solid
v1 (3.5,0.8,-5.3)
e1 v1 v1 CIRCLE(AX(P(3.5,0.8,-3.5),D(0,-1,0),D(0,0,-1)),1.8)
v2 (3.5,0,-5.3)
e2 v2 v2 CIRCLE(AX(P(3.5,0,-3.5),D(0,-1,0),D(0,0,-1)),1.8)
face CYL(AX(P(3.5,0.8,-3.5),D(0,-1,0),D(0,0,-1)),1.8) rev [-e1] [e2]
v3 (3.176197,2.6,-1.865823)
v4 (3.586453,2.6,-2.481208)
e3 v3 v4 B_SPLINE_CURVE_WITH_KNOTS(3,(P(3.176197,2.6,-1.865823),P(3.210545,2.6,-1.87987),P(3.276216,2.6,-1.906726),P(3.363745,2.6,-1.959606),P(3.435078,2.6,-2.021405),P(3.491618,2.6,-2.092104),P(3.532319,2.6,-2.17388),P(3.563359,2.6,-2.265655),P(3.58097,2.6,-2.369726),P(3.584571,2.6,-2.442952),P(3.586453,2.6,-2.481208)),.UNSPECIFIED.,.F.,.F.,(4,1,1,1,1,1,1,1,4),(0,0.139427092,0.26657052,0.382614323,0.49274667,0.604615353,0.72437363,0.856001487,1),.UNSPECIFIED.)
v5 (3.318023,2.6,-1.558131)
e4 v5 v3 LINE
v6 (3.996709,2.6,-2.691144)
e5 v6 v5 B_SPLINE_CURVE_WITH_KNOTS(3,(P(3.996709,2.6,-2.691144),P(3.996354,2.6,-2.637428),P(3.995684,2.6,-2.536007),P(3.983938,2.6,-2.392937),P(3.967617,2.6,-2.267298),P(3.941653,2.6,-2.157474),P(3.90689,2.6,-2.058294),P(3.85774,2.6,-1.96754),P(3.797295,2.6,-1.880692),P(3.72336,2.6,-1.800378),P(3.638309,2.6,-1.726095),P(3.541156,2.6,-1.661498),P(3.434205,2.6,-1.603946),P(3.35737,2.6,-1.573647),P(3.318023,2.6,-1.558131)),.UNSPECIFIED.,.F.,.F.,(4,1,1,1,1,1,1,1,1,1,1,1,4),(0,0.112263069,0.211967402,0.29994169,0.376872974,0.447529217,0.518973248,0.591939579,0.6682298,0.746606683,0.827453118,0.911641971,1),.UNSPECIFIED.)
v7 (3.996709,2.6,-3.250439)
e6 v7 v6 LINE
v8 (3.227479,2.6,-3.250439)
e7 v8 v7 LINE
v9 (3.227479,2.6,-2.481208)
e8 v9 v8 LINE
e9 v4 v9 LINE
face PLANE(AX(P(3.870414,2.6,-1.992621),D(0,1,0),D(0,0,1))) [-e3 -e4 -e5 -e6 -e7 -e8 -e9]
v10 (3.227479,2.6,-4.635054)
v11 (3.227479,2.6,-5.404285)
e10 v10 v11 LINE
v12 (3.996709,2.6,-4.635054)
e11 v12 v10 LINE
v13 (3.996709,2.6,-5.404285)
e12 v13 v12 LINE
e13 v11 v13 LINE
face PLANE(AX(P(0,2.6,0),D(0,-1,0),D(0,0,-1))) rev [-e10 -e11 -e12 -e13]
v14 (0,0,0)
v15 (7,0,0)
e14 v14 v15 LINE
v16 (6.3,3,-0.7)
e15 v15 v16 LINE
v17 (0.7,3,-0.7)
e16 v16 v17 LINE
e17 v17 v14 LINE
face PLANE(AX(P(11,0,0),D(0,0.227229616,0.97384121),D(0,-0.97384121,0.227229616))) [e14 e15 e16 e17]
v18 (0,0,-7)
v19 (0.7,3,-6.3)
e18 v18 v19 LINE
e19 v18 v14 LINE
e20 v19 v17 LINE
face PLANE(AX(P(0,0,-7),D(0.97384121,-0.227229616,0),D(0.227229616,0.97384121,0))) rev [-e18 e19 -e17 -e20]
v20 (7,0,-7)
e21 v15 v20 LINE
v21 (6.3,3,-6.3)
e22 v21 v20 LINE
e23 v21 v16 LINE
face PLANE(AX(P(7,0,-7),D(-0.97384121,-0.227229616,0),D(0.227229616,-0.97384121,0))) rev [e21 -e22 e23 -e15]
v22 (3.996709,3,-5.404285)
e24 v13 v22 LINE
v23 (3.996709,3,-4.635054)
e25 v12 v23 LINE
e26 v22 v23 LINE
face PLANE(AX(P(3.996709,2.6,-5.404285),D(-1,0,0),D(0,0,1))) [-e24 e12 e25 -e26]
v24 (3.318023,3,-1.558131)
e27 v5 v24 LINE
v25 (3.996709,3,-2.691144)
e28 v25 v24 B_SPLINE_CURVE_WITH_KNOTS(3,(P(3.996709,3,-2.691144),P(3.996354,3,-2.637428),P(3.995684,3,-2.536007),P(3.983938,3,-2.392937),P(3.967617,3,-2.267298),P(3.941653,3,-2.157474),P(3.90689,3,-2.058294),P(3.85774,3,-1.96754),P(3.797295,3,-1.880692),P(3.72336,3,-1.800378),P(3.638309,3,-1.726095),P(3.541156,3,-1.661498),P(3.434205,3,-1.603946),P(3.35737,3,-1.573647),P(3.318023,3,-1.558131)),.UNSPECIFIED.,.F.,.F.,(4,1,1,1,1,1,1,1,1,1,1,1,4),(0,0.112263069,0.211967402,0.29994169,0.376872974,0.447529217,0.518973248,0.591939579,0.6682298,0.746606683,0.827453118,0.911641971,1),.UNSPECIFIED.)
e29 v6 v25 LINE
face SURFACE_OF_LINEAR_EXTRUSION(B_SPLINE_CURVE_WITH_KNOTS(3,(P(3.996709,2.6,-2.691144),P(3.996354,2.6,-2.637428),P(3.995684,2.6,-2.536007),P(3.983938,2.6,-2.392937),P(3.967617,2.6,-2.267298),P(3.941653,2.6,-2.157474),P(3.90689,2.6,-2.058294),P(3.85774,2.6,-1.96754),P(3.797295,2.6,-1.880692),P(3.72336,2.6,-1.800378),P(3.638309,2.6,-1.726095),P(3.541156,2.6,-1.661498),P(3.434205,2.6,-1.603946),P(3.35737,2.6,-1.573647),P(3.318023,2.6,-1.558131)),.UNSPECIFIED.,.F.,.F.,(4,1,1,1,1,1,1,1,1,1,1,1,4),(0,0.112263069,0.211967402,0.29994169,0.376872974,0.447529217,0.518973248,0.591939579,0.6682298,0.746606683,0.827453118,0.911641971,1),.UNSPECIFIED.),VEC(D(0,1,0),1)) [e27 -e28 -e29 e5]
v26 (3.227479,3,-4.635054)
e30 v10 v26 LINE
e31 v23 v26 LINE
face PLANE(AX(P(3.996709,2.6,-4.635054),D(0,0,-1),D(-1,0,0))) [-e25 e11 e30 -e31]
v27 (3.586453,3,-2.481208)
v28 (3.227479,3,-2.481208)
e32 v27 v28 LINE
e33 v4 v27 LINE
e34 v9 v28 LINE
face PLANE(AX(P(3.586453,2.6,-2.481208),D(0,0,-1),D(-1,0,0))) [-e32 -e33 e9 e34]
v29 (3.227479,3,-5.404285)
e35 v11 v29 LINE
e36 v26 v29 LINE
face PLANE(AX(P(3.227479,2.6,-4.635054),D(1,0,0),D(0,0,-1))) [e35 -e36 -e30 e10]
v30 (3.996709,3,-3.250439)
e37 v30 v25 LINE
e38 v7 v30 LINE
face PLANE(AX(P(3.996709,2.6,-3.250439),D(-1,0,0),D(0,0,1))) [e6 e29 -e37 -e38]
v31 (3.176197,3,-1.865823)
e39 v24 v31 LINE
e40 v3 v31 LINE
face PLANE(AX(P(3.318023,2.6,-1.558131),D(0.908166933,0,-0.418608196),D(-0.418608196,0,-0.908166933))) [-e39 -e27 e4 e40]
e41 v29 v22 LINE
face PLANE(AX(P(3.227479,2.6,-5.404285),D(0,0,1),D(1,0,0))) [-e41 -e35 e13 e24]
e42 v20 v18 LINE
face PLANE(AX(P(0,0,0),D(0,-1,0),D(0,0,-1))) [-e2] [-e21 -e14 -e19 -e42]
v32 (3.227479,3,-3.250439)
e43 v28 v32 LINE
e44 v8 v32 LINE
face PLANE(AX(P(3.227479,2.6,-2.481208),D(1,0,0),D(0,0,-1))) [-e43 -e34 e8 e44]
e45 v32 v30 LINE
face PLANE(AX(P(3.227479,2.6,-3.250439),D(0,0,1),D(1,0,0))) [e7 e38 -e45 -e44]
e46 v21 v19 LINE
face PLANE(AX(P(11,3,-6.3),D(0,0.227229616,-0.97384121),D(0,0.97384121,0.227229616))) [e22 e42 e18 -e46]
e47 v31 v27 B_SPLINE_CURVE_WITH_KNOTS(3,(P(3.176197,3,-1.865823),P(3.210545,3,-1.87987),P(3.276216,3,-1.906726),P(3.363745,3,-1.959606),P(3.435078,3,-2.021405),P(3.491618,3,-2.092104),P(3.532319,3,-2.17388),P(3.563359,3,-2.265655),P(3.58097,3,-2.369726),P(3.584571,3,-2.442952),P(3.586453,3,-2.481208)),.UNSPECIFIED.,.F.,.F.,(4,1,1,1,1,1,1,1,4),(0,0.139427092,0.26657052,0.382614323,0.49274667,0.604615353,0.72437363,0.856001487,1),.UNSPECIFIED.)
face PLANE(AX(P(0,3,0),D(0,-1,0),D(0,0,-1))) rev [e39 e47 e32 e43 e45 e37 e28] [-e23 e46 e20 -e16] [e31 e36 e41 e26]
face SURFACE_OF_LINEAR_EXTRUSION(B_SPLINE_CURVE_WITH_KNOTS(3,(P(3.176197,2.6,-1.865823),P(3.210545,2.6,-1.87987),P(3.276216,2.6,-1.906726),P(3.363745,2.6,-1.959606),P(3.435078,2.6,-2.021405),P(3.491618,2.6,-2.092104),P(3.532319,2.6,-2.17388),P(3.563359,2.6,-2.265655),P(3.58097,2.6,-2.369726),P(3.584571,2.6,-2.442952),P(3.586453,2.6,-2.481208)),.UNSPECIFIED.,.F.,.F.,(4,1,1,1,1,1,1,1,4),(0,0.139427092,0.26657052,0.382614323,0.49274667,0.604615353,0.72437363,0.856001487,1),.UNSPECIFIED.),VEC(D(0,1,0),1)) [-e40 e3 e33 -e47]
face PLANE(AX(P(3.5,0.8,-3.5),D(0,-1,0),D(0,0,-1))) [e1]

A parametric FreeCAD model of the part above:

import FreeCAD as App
import Part
import Sketcher

doc = App.newDocument("Part")
body = doc.addObject("PartDesign::Body", "Body")

# Sketch on XZ plane
sketch1 = body.newObject("Sketcher::SketchObject", "Sketch")
sketch1.AttachmentSupport = (doc.getObject("XZ_Plane"), [""])
sketch1.MapMode = "FlatFace"
sketch1.addGeometry(Part.LineSegment(App.Vector(0, -7, 0), App.Vector(0, 0, 0)), False)
sketch1.addGeometry(Part.LineSegment(App.Vector(0, 0, 0), App.Vector(7, 0, 0)), False)
sketch1.addGeometry(Part.LineSegment(App.Vector(7, 0, 0), App.Vector(7, -7, 0)), False)
sketch1.addGeometry(Part.LineSegment(App.Vector(7, -7, 0), App.Vector(0, -7, 0)), False)
sketch1.addConstraint(Sketcher.Constraint("Coincident", 0, 2, 1, 1))
sketch1.addConstraint(Sketcher.Constraint("Coincident", 1, 2, 2, 1))
sketch1.addConstraint(Sketcher.Constraint("Coincident", 2, 2, 3, 1))
sketch1.addConstraint(Sketcher.Constraint("Coincident", 3, 2, 0, 1))
sketch1.addConstraint(Sketcher.Constraint("Vertical", 0))
sketch1.addConstraint(Sketcher.Constraint("Horizontal", 1))
sketch1.addConstraint(Sketcher.Constraint("Vertical", 2))
sketch1.addConstraint(Sketcher.Constraint("Horizontal", 3))
sketch1.addConstraint(Sketcher.Constraint("Coincident", 0, 2, -1, 1))
sketch1.addConstraint(Sketcher.Constraint("Equal", 3, 0))
sketch1.addConstraint(Sketcher.Constraint("DistanceX", 1, 1, 1, 2, 7.0))
pad1 = body.newObject("PartDesign::Pad", "Pad")
pad1.Profile = sketch1
pad1.Length = 3
pad1.Reversed = True

# Sketch on XY plane
sketch2 = body.newObject("Sketcher::SketchObject", "Sketch001")
sketch2.AttachmentSupport = (doc.getObject("XY_Plane"), [""])
sketch2.MapMode = "FlatFace"
sketch2.addGeometry(Part.LineSegment(App.Vector(0, 0, 0), App.Vector(0.7, 3, 0)), False)
sketch2.addGeometry(Part.LineSegment(App.Vector(0.7, 3, 0), App.Vector(0, 3, 0)), False)
sketch2.addGeometry(Part.LineSegment(App.Vector(0, 3, 0), App.Vector(0, 0, 0)), False)
sketch2.addGeometry(Part.LineSegment(App.Vector(6.3, 3, 0), App.Vector(7, 0, 0)), False)
sketch2.addGeometry(Part.LineSegment(App.Vector(7, 0, 0), App.Vector(7, 3, 0)), False)
sketch2.addGeometry(Part.LineSegment(App.Vector(7, 3, 0), App.Vector(6.3, 3, 0)), False)
sketch2.addConstraint(Sketcher.Constraint("Coincident", 0, 2, 1, 1))
sketch2.addConstraint(Sketcher.Constraint("Coincident", 1, 2, 2, 1))
sketch2.addConstraint(Sketcher.Constraint("Coincident", 2, 2, 0, 1))
sketch2.addConstraint(Sketcher.Constraint("Coincident", 3, 2, 4, 1))
sketch2.addConstraint(Sketcher.Constraint("Coincident", 4, 2, 5, 1))
sketch2.addConstraint(Sketcher.Constraint("Coincident", 5, 2, 3, 1))
sketch2.addConstraint(Sketcher.Constraint("Horizontal", 1))
sketch2.addConstraint(Sketcher.Constraint("Vertical", 2))
sketch2.addConstraint(Sketcher.Constraint("Vertical", 4))
sketch2.addConstraint(Sketcher.Constraint("Horizontal", 5))
sketch2.addConstraint(Sketcher.Constraint("Coincident", 2, 2, -1, 1))
sketch2.addConstraint(Sketcher.Constraint("PointOnObject", 3, 2, -1))
sketch2.addConstraint(Sketcher.Constraint("Horizontal", 1, 2, 4, 2))
sketch2.addConstraint(Sketcher.Constraint("Equal", 1, 5))
sketch2.addConstraint(Sketcher.Constraint("DistanceY", 2, 2, 2, 1, 3.0))
sketch2.addConstraint(Sketcher.Constraint("DistanceX", 1, 2, 1, 1, 0.7))
sketch2.addConstraint(Sketcher.Constraint("DistanceX", -1, 1, 3, 2, 7.0))
pocket1 = body.newObject("PartDesign::Pocket", "Pocket")
pocket1.Profile = sketch2
pocket1.Length = 7

# Sketch on YZ plane
sketch3 = body.newObject("Sketcher::SketchObject", "Sketch002")
sketch3.AttachmentSupport = (doc.getObject("YZ_Plane"), [""])
sketch3.MapMode = "FlatFace"
sketch3.addGeometry(Part.LineSegment(App.Vector(0, 0, 0), App.Vector(3, -0.7, 0)), False)
sketch3.addGeometry(Part.LineSegment(App.Vector(3, -0.7, 0), App.Vector(3, 0, 0)), False)
sketch3.addGeometry(Part.LineSegment(App.Vector(3, 0, 0), App.Vector(0, 0, 0)), False)
sketch3.addGeometry(Part.LineSegment(App.Vector(3, -7, 0), App.Vector(3, -6.3, 0)), False)
sketch3.addGeometry(Part.LineSegment(App.Vector(3, -6.3, 0), App.Vector(0, -7, 0)), False)
sketch3.addGeometry(Part.LineSegment(App.Vector(0, -7, 0), App.Vector(3, -7, 0)), False)
sketch3.addConstraint(Sketcher.Constraint("Coincident", 0, 2, 1, 1))
sketch3.addConstraint(Sketcher.Constraint("Coincident", 1, 2, 2, 1))
sketch3.addConstraint(Sketcher.Constraint("Coincident", 2, 2, 0, 1))
sketch3.addConstraint(Sketcher.Constraint("Coincident", 3, 2, 4, 1))
sketch3.addConstraint(Sketcher.Constraint("Coincident", 4, 2, 5, 1))
sketch3.addConstraint(Sketcher.Constraint("Coincident", 5, 2, 3, 1))
sketch3.addConstraint(Sketcher.Constraint("Vertical", 1))
sketch3.addConstraint(Sketcher.Constraint("Horizontal", 2))
sketch3.addConstraint(Sketcher.Constraint("Vertical", 3))
sketch3.addConstraint(Sketcher.Constraint("Horizontal", 5))
sketch3.addConstraint(Sketcher.Constraint("Coincident", 2, 2, -1, 1))
sketch3.addConstraint(Sketcher.Constraint("PointOnObject", 4, 2, -2))
sketch3.addConstraint(Sketcher.Constraint("Vertical", 1, 2, 3, 2))
sketch3.addConstraint(Sketcher.Constraint("Equal", 1, 3))
sketch3.addConstraint(Sketcher.Constraint("DistanceX", 2, 2, 2, 1, 3.0))
sketch3.addConstraint(Sketcher.Constraint("DistanceY", 1, 1, 1, 2, 0.7))
sketch3.addConstraint(Sketcher.Constraint("DistanceY", 4, 2, -1, 1, 7.0))
pocket2 = body.newObject("PartDesign::Pocket", "Pocket001")
pocket2.Profile = sketch3
pocket2.Length = 11
pocket2.Reversed = True

# Sketch on XZ plane
sketch4 = body.newObject("Sketcher::SketchObject", "Sketch003")
sketch4.AttachmentSupport = (doc.getObject("XZ_Plane"), [""])
sketch4.MapMode = "FlatFace"
sketch4.addGeometry(Part.Circle(App.Vector(3.5, -3.5, 0), App.Vector(0, 0, 1), 1.8), False)
sketch4.addConstraint(Sketcher.Constraint("Diameter", 0, 3.6))
sketch4.addConstraint(Sketcher.Constraint("DistanceX", -1, 1, 0, 3, 3.5))
sketch4.addConstraint(Sketcher.Constraint("DistanceY", 0, 3, -1, 1, 3.5))
pocket3 = body.newObject("PartDesign::Pocket", "Pocket002")
pocket3.Profile = sketch4
pocket3.Length = 0.8

# Sketch on XZ plane
sketch5 = body.newObject("Sketcher::SketchObject", "Sketch004")
sketch5.AttachmentSupport = (doc.getObject("XZ_Plane"), [""])
sketch5.MapMode = "FlatFace"
sketch5.AttachmentOffset = App.Placement(App.Vector(0, 0, -3), App.Rotation())
sketch5.addGeometry(Part.LineSegment(App.Vector(3.227479, -5.404285, 0), App.Vector(3.227479, -4.635054, 0)), False)
sketch5.addGeometry(Part.LineSegment(App.Vector(3.227479, -4.635054, 0), App.Vector(3.996709, -4.635054, 0)), False)
sketch5.addGeometry(Part.LineSegment(App.Vector(3.996709, -4.635054, 0), App.Vector(3.996709, -5.404285, 0)), False)
sketch5.addGeometry(Part.LineSegment(App.Vector(3.996709, -5.404285, 0), App.Vector(3.227479, -5.404285, 0)), False)
sketch5.addGeometry(Part.LineSegment(App.Vector(3.996709, -3.250439, 0), App.Vector(3.227479, -3.250439, 0)), False)
sketch5.addGeometry(Part.LineSegment(App.Vector(3.227479, -3.250439, 0), App.Vector(3.227479, -2.481208, 0)), False)
sketch5.addGeometry(Part.LineSegment(App.Vector(3.227479, -2.481208, 0), App.Vector(3.586453, -2.481208, 0)), False)
sketch5.addGeometry(Part.BSplineCurve([App.Vector(3.176197, -1.865823, 0), App.Vector(3.210545, -1.87987, 0), App.Vector(3.276216, -1.906726, 0), App.Vector(3.363745, -1.959606, 0), App.Vector(3.435078, -2.021405, 0), App.Vector(3.491618, -2.092104, 0), App.Vector(3.532319, -2.17388, 0), App.Vector(3.563359, -2.265655, 0), App.Vector(3.58097, -2.369726, 0), App.Vector(3.584571, -2.442952, 0), App.Vector(3.586453, -2.481208, 0)], [4, 1, 1, 1, 1, 1, 1, 1, 4], [0, 1.115416734, 2.132564161, 3.06091458, 3.941973359, 4.836922823, 5.794989041, 6.848011894, 8], False, 3, [1, 1, 1, 1, 1, 1, 1, 1, 1, 1, 1], False), False)
sketch5.addGeometry(Part.LineSegment(App.Vector(3.176197, -1.865823, 0), App.Vector(3.318023, -1.558131, 0)), False)
sketch5.addGeometry(Part.BSplineCurve([App.Vector(3.996709, -2.691144, 0), App.Vector(3.996354, -2.637428, 0), App.Vector(3.995684, -2.536007, 0), App.Vector(3.983938, -2.392937, 0), App.Vector(3.967617, -2.267298, 0), App.Vector(3.941653, -2.157474, 0), App.Vector(3.90689, -2.058294, 0), App.Vector(3.85774, -1.96754, 0), App.Vector(3.797295, -1.880692, 0), App.Vector(3.72336, -1.800378, 0), App.Vector(3.638309, -1.726095, 0), App.Vector(3.541156, -1.661498, 0), App.Vector(3.434205, -1.603946, 0), App.Vector(3.35737, -1.573647, 0), App.Vector(3.318023, -1.558131, 0)], [4, 1, 1, 1, 1, 1, 1, 1, 1, 1, 1, 1, 4], [0, 1.347156832, 2.543608823, 3.599300285, 4.522475688, 5.370350604, 6.227678973, 7.103274953, 8.018757603, 8.959280198, 9.929437417, 10.939703653, 12], False, 3, [1, 1, 1, 1, 1, 1, 1, 1, 1, 1, 1, 1, 1, 1, 1], False), False)
sketch5.addGeometry(Part.LineSegment(App.Vector(3.996709, -2.691144, 0), App.Vector(3.996709, -3.250439, 0)), False)
sketch5.addConstraint(Sketcher.Constraint("Block", 7))
sketch5.addConstraint(Sketcher.Constraint("Block", 9))
sketch5.addConstraint(Sketcher.Constraint("Coincident", 0, 2, 1, 1))
sketch5.addConstraint(Sketcher.Constraint("Coincident", 1, 2, 2, 1))
sketch5.addConstraint(Sketcher.Constraint("Coincident", 2, 2, 3, 1))
sketch5.addConstraint(Sketcher.Constraint("Coincident", 3, 2, 0, 1))
sketch5.addConstraint(Sketcher.Constraint("Coincident", 4, 2, 5, 1))
sketch5.addConstraint(Sketcher.Constraint("Coincident", 5, 2, 6, 1))
sketch5.addConstraint(Sketcher.Constraint("Coincident", 6, 2, 7, 2))
sketch5.addConstraint(Sketcher.Constraint("Coincident", 7, 1, 8, 1))
sketch5.addConstraint(Sketcher.Constraint("Coincident", 8, 2, 9, 2))
sketch5.addConstraint(Sketcher.Constraint("Coincident", 9, 1, 10, 1))
sketch5.addConstraint(Sketcher.Constraint("Coincident", 10, 2, 4, 1))
sketch5.addConstraint(Sketcher.Constraint("Vertical", 0))
sketch5.addConstraint(Sketcher.Constraint("Horizontal", 1))
sketch5.addConstraint(Sketcher.Constraint("Vertical", 2))
sketch5.addConstraint(Sketcher.Constraint("Horizontal", 3))
sketch5.addConstraint(Sketcher.Constraint("Horizontal", 4))
sketch5.addConstraint(Sketcher.Constraint("Vertical", 5))
sketch5.addConstraint(Sketcher.Constraint("Horizontal", 6))
sketch5.addConstraint(Sketcher.Constraint("Vertical", 10))
sketch5.addConstraint(Sketcher.Constraint("Vertical", 3, 2, 4, 2))
sketch5.addConstraint(Sketcher.Constraint("Vertical", 2, 2, 10, 2))
sketch5.addConstraint(Sketcher.Constraint("Equal", 4, 0))
sketch5.addConstraint(Sketcher.Constraint("Equal", 2, 5))
sketch5.addConstraint(Sketcher.Constraint("DistanceX", 1, 1, 1, 2, 0.769231))
sketch5.addConstraint(Sketcher.Constraint("DistanceY", 0, 2, -1, 1, 4.635054))
pocket4 = body.newObject("PartDesign::Pocket", "Pocket003")
pocket4.Profile = sketch5
pocket4.Length = 0.4
pocket4.Reversed = True

doc.recompute()
